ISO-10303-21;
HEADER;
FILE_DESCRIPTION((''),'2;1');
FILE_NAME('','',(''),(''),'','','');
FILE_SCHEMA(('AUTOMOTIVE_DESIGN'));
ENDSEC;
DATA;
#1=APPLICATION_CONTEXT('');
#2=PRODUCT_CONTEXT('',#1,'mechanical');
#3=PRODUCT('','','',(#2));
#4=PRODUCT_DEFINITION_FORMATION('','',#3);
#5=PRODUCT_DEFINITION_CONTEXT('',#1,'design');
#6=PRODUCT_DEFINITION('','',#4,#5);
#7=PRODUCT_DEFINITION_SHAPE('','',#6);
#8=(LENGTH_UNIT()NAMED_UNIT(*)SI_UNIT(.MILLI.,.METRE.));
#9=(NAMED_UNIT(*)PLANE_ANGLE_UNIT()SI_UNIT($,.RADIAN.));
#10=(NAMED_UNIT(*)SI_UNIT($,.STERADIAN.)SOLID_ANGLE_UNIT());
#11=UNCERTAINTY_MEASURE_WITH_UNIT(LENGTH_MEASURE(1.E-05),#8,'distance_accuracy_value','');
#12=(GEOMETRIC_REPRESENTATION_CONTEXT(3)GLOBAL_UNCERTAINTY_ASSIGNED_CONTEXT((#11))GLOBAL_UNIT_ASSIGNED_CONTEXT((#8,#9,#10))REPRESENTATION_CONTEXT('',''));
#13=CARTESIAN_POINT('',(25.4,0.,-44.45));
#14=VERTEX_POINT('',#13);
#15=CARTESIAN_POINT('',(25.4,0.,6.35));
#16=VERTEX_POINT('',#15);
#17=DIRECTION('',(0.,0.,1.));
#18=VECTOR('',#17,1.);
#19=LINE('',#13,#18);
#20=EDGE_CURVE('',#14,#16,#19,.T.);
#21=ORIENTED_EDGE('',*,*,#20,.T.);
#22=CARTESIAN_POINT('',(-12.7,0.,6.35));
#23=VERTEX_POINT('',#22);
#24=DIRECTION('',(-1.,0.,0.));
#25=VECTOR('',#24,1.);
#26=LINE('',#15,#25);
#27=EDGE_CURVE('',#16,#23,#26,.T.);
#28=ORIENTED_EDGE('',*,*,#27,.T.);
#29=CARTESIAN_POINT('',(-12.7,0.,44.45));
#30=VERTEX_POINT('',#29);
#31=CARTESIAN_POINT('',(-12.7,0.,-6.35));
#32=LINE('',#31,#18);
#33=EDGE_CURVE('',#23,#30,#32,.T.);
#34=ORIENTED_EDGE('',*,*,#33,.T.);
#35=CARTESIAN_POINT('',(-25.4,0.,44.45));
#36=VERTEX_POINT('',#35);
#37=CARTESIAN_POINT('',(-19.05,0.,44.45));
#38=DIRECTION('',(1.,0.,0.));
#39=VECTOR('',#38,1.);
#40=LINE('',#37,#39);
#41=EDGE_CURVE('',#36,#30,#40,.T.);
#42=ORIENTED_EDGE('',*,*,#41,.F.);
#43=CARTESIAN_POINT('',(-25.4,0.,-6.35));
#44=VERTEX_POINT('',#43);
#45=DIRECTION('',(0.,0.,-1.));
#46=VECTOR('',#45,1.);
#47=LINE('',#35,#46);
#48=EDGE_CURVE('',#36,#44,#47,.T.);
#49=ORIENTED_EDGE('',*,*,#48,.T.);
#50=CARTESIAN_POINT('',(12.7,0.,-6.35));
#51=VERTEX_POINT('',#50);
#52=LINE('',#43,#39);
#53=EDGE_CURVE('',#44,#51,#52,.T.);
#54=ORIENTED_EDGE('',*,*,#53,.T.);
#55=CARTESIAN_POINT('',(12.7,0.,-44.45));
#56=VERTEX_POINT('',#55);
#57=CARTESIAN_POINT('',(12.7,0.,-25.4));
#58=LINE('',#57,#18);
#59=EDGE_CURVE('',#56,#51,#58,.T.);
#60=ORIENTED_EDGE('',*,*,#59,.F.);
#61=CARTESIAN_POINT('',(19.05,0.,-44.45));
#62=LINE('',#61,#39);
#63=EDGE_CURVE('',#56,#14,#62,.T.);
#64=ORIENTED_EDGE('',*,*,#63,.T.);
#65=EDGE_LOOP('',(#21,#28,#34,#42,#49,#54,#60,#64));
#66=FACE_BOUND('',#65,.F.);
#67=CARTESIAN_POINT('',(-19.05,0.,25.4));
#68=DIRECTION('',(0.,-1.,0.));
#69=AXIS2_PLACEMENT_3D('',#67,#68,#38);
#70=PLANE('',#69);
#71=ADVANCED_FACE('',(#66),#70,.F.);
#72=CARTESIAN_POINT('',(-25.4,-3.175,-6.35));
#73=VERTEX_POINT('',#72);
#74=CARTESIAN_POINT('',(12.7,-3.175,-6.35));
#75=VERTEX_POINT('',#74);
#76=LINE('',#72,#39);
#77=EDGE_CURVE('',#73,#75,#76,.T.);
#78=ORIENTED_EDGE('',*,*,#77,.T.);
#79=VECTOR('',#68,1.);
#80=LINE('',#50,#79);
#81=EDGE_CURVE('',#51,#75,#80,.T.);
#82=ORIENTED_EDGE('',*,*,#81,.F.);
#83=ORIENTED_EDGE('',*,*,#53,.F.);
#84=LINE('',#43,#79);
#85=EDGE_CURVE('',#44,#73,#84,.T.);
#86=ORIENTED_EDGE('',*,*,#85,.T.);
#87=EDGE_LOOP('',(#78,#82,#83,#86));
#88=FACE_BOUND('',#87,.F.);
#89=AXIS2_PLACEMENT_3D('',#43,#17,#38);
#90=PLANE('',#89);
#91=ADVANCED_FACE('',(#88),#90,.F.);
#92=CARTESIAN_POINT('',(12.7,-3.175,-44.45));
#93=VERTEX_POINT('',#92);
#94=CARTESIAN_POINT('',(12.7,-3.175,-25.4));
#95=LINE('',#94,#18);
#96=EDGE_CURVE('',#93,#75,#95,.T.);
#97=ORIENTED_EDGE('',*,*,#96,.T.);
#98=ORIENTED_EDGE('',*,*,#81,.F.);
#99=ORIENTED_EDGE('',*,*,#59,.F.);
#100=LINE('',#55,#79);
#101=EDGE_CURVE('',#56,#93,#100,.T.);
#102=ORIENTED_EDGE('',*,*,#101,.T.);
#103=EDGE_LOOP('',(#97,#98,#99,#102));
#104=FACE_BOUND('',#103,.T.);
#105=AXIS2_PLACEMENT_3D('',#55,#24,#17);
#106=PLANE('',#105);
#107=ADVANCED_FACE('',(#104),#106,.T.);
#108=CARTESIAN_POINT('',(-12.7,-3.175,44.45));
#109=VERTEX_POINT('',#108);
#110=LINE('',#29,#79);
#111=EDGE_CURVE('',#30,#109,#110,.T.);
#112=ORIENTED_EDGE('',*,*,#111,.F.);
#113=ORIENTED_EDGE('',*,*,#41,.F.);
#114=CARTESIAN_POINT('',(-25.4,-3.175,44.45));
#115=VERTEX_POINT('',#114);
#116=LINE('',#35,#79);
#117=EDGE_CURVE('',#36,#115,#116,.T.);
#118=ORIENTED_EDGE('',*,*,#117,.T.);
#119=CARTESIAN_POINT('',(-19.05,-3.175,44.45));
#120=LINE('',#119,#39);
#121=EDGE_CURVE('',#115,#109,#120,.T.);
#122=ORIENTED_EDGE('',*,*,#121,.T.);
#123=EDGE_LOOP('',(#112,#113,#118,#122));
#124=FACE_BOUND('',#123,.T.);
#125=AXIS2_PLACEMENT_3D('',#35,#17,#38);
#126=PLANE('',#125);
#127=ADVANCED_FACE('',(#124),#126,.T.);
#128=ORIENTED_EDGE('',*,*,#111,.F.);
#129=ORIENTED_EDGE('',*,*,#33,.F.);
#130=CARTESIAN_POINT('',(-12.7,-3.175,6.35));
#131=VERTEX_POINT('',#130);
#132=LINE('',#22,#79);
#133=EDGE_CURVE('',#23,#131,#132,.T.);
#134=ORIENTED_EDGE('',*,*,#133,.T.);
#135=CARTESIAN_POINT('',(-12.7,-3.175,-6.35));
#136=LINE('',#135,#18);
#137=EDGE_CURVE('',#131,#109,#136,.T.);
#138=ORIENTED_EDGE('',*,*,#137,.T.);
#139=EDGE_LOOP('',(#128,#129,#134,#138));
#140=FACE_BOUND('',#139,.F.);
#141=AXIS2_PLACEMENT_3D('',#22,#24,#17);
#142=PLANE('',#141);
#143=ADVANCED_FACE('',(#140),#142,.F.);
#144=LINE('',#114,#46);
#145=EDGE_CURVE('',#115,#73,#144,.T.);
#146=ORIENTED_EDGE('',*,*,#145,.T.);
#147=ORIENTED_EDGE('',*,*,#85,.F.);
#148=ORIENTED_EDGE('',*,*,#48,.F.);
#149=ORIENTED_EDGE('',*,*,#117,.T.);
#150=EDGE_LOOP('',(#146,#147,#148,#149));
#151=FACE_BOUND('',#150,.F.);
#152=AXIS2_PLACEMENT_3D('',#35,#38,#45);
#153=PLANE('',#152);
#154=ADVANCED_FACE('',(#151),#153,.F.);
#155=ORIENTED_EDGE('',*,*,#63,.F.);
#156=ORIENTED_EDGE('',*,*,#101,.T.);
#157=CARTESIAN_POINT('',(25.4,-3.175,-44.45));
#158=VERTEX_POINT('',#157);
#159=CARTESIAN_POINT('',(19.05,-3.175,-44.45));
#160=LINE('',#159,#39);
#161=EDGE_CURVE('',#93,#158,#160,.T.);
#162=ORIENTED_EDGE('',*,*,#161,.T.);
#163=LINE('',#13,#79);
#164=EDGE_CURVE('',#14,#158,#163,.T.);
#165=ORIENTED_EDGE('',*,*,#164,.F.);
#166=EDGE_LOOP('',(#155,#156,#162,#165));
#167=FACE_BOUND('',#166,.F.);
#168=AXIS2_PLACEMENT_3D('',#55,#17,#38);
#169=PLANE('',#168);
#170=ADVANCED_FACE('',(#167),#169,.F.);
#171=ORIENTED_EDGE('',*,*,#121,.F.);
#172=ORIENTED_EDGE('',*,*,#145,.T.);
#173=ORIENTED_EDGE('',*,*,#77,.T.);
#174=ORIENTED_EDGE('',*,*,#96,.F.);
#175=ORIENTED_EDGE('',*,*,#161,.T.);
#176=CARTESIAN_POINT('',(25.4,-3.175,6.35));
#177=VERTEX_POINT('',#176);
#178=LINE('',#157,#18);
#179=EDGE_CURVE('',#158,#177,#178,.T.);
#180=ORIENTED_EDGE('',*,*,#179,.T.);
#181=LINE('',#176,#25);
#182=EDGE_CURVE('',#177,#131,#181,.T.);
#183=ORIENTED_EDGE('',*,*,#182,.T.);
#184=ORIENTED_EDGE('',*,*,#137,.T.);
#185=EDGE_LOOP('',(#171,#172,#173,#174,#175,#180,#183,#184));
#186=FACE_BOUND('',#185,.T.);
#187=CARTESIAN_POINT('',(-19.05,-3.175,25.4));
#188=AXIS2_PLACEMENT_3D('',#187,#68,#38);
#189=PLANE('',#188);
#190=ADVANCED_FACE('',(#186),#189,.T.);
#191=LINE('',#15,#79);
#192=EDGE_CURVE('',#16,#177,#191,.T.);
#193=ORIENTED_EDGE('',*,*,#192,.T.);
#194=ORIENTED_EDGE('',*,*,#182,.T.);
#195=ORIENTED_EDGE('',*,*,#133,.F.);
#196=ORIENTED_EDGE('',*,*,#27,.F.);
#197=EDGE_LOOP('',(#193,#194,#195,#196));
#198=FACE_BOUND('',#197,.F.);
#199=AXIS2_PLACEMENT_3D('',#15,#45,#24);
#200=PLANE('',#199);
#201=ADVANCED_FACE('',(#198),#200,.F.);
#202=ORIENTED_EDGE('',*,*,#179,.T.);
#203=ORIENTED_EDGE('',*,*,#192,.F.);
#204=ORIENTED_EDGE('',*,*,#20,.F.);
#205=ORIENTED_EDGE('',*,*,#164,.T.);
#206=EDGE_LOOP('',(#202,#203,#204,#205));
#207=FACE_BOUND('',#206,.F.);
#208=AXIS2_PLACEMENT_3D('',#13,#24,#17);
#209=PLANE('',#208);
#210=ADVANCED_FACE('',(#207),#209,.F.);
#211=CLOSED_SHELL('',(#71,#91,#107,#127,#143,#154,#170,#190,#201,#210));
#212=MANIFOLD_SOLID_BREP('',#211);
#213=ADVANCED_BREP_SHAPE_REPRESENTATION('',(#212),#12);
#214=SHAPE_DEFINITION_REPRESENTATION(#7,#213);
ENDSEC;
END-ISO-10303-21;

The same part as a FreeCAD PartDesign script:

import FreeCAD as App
import Part
import Sketcher
Q = App.Units.Quantity


def add_polygon(sketch, points):
    """Adds a closed chain of lines whose ends are joined by coincident constraints."""
    first, n = sketch.GeometryCount, len(points)
    for a, b in zip(points, points[1:] + points[:1]):
        sketch.addGeometry(Part.LineSegment(App.Vector(*a, 0), App.Vector(*b, 0)), False)
    for i in range(n):
        sketch.addConstraint(Sketcher.Constraint("Coincident", first + i, 2, first + (i + 1) % n, 1))

doc = App.newDocument("Part")
body = doc.addObject("PartDesign::Body", "Body")

# Sketch on XZ plane
sketch1 = doc.addObject("Sketcher::SketchObject", "Sketch")
body.addObject(sketch1)
sketch1.AttachmentSupport = (doc.XZ_Plane, [""])
sketch1.MapMode = "FlatFace"
add_polygon(sketch1, [(-25, 44), (-25, -6), (13, -6), (13, -44), (25, -44), (25, 6), (-13, 6), (-13, 44)])  # lines 0-7
sketch1.addConstraint([
    Sketcher.Constraint("Vertical", 0),
    Sketcher.Constraint("Horizontal", 1),
    Sketcher.Constraint("Vertical", 2),
    Sketcher.Constraint("Horizontal", 3),
    Sketcher.Constraint("Vertical", 4),
    Sketcher.Constraint("Horizontal", 5),
    Sketcher.Constraint("Vertical", 6),
    Sketcher.Constraint("Horizontal", 7),
    Sketcher.Constraint("Symmetric", 0, 2, 4, 2, -1, 1),
    Sketcher.Constraint("Symmetric", 2, 2, 6, 2, -1, 1),
    Sketcher.Constraint("Equal", 5, 2),
    Sketcher.Constraint("DistanceY", 0, 2, 0, 1, Q("2 in")),
    Sketcher.Constraint("DistanceX", 1, 1, 1, 2, Q("1.5 in")),
    Sketcher.Constraint("DistanceX", 3, 1, 3, 2, Q("0.5 in")),
])
pad1 = doc.addObject("PartDesign::Pad", "Pad")
body.addObject(pad1)
pad1.Profile = sketch1
pad1.Length = Q("0.125 in")

doc.recompute()
